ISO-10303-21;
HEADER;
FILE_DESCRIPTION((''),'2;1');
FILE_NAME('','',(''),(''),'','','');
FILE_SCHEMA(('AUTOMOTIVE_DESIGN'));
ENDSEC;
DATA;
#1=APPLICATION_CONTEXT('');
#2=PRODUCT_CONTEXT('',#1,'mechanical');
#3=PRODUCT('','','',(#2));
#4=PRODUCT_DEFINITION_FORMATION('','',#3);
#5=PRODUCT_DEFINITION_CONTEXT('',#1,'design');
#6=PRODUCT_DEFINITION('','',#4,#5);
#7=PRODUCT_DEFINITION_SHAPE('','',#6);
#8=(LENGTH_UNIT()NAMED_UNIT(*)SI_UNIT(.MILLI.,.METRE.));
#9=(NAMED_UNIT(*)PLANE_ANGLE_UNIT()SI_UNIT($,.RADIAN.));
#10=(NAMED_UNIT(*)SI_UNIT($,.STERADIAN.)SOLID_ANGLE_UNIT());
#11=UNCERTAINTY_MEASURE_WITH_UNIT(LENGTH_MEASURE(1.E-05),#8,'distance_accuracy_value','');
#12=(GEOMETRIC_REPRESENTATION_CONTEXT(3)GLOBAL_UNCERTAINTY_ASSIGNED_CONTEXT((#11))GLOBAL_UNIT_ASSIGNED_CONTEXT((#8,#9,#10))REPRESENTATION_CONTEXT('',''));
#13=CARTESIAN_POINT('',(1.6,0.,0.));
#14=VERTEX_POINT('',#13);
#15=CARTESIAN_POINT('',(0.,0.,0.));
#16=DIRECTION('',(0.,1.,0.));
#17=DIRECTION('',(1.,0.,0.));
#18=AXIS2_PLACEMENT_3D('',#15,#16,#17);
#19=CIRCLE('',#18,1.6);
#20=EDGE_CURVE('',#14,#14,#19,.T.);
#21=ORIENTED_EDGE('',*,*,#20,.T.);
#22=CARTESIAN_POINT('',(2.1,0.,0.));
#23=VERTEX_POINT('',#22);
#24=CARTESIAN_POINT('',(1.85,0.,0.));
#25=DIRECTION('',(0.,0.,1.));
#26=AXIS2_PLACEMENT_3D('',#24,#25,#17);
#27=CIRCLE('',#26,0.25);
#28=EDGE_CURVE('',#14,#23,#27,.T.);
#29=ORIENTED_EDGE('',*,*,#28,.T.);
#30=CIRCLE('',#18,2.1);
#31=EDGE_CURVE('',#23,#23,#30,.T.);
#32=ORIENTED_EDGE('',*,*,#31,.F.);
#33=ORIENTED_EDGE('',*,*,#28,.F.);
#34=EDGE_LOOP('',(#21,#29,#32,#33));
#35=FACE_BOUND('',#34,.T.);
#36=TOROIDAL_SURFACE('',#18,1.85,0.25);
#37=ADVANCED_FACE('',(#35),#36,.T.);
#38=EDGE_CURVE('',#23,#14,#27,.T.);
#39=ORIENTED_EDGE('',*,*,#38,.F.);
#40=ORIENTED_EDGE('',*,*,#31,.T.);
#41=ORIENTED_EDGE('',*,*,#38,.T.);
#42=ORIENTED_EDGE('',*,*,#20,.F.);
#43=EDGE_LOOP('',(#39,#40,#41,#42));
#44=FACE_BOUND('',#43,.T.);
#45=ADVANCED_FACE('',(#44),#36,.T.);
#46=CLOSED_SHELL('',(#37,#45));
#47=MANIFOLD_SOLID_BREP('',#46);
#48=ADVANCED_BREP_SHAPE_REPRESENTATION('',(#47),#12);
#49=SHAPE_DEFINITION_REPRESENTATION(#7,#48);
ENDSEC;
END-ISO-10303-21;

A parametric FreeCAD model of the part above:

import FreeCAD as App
import Part
import Sketcher

V = App.Vector

doc = App.newDocument("Part")
body = doc.addObject("PartDesign::Body", "Body")

sketch1 = body.newObject("Sketcher::SketchObject", "Sketch")
sketch1.AttachmentSupport = (doc.getObject("XY_Plane"), [""])
sketch1.MapMode = "FlatFace"
sketch1.addGeometry(Part.Circle(V(1.85, 0, 0), V(0, 0, 1), 0.25), False)
sketch1.addConstraint([
    Sketcher.Constraint("PointOnObject", 0, 3, -1),
    Sketcher.Constraint("Diameter", 0, 0.5),
    Sketcher.Constraint("DistanceX", -1, 1, 0, 3, 1.85),
])
revolution = body.newObject("PartDesign::Revolution", "Revolution")
revolution.Profile = sketch1
revolution.ReferenceAxis = (sketch1, ["V_Axis"])
revolution.Angle = 360

doc.recompute()
